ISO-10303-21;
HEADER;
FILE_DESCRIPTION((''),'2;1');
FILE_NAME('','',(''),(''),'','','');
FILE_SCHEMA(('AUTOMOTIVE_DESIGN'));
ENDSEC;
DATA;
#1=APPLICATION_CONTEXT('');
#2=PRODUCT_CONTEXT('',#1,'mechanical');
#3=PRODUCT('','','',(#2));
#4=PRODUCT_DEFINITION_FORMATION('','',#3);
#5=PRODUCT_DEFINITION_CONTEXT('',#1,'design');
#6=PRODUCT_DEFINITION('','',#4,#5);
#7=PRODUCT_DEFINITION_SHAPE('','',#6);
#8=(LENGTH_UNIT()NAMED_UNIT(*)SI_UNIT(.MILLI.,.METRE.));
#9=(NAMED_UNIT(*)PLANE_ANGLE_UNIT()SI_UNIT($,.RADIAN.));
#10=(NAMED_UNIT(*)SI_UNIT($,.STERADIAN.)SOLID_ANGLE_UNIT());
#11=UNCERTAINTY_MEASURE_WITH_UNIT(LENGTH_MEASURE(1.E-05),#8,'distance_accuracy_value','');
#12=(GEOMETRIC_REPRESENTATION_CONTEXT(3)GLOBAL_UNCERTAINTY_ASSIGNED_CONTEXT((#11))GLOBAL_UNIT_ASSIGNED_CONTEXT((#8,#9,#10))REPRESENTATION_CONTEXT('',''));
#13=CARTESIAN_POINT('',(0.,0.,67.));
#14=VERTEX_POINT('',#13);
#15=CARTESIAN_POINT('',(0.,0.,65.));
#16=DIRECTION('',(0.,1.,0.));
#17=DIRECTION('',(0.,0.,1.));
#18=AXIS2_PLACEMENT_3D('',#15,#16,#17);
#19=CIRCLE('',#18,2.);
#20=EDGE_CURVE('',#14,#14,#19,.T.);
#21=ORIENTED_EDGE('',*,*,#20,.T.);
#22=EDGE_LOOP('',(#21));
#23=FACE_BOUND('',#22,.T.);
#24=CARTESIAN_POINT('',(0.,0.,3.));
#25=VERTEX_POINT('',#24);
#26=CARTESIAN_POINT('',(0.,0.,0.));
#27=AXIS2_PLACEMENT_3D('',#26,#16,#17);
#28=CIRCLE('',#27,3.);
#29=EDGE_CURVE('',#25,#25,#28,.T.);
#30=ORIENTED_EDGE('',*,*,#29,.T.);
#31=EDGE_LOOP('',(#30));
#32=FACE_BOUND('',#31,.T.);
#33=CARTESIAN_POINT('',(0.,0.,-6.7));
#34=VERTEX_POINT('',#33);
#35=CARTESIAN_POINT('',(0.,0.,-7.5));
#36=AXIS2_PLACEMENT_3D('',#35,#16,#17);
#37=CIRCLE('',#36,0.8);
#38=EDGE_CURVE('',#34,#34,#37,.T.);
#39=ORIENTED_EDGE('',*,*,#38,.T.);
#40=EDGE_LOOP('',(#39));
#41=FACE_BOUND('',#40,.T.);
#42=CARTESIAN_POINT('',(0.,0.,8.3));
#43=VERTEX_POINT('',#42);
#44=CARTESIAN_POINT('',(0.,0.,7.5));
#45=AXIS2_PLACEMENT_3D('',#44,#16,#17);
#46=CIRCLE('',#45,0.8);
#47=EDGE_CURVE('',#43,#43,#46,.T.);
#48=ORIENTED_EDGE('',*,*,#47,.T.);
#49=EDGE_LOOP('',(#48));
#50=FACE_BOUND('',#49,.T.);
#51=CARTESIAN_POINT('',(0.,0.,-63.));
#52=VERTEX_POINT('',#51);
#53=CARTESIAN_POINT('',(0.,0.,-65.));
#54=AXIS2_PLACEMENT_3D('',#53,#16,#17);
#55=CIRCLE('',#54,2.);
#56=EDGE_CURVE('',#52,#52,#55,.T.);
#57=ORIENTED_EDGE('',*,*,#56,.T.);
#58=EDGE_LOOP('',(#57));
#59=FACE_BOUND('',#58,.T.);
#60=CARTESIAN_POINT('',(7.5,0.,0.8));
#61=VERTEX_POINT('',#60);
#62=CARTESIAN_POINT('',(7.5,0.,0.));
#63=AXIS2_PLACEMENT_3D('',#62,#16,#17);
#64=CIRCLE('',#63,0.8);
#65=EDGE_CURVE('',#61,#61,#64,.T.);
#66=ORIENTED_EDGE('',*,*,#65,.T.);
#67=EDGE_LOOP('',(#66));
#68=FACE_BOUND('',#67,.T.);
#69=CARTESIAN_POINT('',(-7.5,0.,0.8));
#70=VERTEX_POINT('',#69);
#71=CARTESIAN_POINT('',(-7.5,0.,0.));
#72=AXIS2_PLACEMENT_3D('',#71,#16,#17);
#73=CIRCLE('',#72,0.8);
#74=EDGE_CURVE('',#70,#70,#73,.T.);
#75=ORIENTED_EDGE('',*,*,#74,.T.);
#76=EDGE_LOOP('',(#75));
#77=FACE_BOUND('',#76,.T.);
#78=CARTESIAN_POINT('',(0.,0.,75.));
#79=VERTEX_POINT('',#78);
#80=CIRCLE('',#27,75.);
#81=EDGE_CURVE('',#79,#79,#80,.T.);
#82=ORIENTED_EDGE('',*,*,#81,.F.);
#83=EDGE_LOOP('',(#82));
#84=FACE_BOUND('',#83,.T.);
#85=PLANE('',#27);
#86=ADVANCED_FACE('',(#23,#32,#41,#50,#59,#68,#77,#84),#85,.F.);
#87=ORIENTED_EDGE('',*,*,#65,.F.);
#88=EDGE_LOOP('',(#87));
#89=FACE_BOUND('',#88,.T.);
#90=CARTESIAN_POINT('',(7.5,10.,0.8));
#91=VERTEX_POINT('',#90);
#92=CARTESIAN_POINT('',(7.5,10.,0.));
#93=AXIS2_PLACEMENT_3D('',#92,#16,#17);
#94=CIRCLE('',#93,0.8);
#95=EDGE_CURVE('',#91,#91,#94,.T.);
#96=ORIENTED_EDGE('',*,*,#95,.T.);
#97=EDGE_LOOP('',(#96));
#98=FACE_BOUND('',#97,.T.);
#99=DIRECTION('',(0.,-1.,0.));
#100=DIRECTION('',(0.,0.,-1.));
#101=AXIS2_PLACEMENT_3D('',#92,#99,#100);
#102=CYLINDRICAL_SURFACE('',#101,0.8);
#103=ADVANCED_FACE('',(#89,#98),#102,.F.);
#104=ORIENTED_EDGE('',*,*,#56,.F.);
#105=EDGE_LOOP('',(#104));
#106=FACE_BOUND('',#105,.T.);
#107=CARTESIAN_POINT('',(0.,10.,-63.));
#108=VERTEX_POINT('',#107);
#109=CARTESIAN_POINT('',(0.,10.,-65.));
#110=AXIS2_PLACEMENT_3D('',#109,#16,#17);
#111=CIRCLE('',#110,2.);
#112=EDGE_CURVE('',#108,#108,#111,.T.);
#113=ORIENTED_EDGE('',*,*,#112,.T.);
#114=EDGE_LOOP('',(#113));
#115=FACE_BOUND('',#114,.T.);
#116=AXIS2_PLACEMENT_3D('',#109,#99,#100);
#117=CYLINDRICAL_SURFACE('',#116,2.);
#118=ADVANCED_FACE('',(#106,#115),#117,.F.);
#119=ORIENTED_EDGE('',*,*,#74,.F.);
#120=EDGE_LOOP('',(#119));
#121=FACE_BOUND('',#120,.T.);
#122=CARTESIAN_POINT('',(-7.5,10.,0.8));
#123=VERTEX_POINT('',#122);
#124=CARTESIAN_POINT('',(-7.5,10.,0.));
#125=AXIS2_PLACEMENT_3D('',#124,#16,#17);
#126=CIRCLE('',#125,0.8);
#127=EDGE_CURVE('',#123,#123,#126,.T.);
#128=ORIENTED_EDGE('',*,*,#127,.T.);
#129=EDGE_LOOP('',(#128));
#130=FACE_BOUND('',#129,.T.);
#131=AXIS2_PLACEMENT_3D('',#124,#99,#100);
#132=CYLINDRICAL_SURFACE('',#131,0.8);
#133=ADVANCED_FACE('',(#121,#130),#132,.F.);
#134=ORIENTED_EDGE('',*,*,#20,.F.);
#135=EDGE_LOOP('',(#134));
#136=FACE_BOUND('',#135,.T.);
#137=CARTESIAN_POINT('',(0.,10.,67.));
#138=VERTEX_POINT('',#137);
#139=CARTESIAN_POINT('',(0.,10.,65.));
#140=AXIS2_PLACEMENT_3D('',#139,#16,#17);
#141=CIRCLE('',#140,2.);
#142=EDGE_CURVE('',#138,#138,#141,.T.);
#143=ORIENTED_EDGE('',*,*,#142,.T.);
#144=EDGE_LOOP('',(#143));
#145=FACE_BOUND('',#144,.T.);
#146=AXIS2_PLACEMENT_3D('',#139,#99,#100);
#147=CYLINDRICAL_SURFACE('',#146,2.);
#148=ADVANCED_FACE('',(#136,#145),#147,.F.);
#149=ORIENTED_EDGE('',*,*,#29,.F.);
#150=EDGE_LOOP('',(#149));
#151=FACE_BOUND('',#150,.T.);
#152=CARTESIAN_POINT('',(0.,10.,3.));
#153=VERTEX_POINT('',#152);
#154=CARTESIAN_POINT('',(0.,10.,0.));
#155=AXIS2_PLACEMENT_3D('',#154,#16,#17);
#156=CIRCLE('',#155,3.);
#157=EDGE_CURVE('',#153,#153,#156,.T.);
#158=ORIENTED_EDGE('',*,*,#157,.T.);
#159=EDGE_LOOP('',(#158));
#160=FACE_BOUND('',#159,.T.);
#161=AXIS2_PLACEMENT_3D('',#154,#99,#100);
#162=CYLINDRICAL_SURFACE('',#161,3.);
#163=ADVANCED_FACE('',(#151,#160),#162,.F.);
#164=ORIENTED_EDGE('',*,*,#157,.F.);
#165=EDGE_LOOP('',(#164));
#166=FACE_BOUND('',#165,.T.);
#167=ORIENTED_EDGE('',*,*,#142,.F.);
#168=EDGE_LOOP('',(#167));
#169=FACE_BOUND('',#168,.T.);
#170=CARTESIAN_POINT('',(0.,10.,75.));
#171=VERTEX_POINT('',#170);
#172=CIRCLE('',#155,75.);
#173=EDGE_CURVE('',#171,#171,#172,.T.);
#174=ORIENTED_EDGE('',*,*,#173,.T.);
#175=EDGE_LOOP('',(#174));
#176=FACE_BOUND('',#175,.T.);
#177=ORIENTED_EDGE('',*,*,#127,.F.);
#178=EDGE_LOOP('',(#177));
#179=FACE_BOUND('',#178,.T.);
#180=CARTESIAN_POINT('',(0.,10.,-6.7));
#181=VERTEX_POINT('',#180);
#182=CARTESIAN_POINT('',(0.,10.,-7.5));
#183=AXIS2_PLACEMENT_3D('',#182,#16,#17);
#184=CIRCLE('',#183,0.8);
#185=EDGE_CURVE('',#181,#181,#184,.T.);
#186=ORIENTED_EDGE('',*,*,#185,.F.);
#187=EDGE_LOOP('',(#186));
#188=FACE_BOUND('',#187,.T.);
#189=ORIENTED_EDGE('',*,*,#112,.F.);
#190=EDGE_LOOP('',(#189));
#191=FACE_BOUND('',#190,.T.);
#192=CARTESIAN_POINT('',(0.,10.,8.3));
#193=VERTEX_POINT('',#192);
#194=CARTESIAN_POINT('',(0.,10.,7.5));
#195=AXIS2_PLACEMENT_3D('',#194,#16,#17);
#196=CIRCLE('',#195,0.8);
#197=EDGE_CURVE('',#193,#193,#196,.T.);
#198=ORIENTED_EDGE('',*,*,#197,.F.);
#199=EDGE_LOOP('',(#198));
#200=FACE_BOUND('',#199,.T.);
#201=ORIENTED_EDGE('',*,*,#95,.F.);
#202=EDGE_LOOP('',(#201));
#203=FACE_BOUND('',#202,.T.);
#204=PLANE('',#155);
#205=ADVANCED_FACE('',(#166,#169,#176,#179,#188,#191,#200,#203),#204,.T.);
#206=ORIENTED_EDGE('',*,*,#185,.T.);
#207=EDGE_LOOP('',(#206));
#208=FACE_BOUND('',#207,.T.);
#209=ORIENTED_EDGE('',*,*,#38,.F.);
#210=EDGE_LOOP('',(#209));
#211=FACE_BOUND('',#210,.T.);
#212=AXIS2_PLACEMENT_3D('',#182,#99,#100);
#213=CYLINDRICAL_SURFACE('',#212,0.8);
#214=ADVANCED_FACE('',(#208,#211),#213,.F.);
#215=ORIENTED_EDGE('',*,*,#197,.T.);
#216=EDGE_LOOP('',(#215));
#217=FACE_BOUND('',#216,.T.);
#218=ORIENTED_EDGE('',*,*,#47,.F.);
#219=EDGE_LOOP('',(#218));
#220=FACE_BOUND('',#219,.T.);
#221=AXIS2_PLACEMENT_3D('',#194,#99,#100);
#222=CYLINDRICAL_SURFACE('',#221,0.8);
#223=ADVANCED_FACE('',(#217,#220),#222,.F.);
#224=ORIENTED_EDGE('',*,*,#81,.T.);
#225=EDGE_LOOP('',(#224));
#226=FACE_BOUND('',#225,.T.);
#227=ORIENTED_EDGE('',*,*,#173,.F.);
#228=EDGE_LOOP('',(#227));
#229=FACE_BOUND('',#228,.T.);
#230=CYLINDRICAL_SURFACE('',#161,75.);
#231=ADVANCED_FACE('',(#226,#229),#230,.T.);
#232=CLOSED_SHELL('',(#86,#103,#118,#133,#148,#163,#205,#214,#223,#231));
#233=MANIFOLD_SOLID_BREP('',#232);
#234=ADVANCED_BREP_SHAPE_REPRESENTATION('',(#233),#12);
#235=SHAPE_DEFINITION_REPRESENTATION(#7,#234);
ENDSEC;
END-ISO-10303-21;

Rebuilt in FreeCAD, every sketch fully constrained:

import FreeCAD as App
import Part
import Sketcher

V = App.Vector
Q = App.Units.Quantity

doc = App.newDocument("Part")
body = doc.addObject("PartDesign::Body", "Body")

# Sketch on XZ plane
sketch1 = body.newObject("Sketcher::SketchObject", "Sketch")
sketch1.AttachmentSupport = (doc.getObject("XZ_Plane"), [""])
sketch1.MapMode = "FlatFace"
sketch1.addGeometry([
    Part.Circle(V(0, 0, 0), V(0, 0, 1), 75),  # 0
    Part.Circle(V(0, -65, 0), V(0, 0, 1), 2),  # 1
    Part.Circle(V(0, -7.5, 0), V(0, 0, 1), 0.8),  # 2
    Part.Circle(V(-7.5, 0, 0), V(0, 0, 1), 0.8),  # 3
    Part.Circle(V(0, 0, 0), V(0, 0, 1), 3),  # 4
    Part.Circle(V(0, 7.5, 0), V(0, 0, 1), 0.8),  # 5
    Part.Circle(V(0, 65, 0), V(0, 0, 1), 2),  # 6
    Part.Circle(V(7.5, 0, 0), V(0, 0, 1), 0.8),  # 7
], False)
sketch1.addConstraint([
    Sketcher.Constraint("Coincident", 0, 3, -1, 1),
    Sketcher.Constraint("Coincident", 4, 3, -1, 1),
    Sketcher.Constraint("Equal", 2, 3),
    Sketcher.Constraint("Equal", 3, 5),
    Sketcher.Constraint("Equal", 1, 6),
    Sketcher.Constraint("Equal", 5, 7),
    Sketcher.Constraint("Symmetric", 2, 3, 5, 3, -1, 1),
    Sketcher.Constraint("Symmetric", 1, 3, 6, 3, -1, 1),
    Sketcher.Constraint("Symmetric", 3, 3, 7, 3, -1, 1),
    Sketcher.Constraint("PointOnObject", 1, 3, -2),
    Sketcher.Constraint("PointOnObject", 2, 3, -2),
    Sketcher.Constraint("PointOnObject", 3, 3, -1),
    Sketcher.Constraint("Diameter", 0, Q("150 mm")),
    Sketcher.Constraint("Diameter", 1, Q("4 mm")),
    Sketcher.Constraint("Diameter", 4, Q("6 mm")),
    Sketcher.Constraint("Diameter", 2, Q("1.6 mm")),
    Sketcher.Constraint("DistanceY", 1, 3, -1, 1, Q("65 mm")),
    Sketcher.Constraint("DistanceY", 2, 3, 5, 3, Q("15 mm")),
    Sketcher.Constraint("DistanceX", 3, 3, 7, 3, Q("15 mm")),
])
pad1 = body.newObject("PartDesign::Pad", "Pad")
pad1.Profile = sketch1
pad1.Length = 10
pad1.Reversed = True

doc.recompute()
